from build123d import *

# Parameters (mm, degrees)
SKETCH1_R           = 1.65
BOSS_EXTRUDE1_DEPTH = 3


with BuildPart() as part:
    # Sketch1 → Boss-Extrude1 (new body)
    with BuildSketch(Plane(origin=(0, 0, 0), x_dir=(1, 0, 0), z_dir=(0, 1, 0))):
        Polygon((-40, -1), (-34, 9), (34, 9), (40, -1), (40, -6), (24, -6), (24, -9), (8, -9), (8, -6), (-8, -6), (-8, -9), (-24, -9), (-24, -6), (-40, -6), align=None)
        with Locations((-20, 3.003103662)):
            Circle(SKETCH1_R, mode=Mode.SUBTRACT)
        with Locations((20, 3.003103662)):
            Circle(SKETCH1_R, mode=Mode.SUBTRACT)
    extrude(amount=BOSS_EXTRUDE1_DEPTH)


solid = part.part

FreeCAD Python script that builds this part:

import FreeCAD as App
import Part
import Sketcher
Q = App.Units.Quantity


def add_polygon(sketch, points):
    """Adds a closed chain of lines whose ends are joined by coincident constraints."""
    first, n = sketch.GeometryCount, len(points)
    for a, b in zip(points, points[1:] + points[:1]):
        sketch.addGeometry(Part.LineSegment(App.Vector(*a, 0), App.Vector(*b, 0)), False)
    for i in range(n):
        sketch.addConstraint(Sketcher.Constraint("Coincident", first + i, 2, first + (i + 1) % n, 1))

doc = App.newDocument("Part")
params = doc.addObject("Spreadsheet::Sheet", "Params")
for row, (alias, value) in enumerate([
    ("sketch1_diameter", "3.3 mm"),
    ("sketch1_width", "16 mm"),
    ("sketch1_width2", "68 mm"),
    ("sketch1_height", "5 mm"),
    ("sketch1_height2", "3 mm"),
    ("pad1_length", "3 mm"),
], start=1):
    params.set(f"A{row}", alias)
    params.set(f"B{row}", "=" + value)
    params.setAlias(f"B{row}", alias)

body = doc.addObject("PartDesign::Body", "Body")

sketch1 = body.newObject("Sketcher::SketchObject", "Sketch")
sketch1.AttachmentSupport = (doc.getObject("XZ_Plane"), [""])
sketch1.MapMode = "FlatFace"
add_polygon(sketch1, [(-34, -9), (-40, 1), (-40, 6), (-24, 6), (-24, 9), (-8, 9), (-8, 6), (8, 6), (8, 9), (24, 9), (24, 6), (40, 6), (40, 1), (34, -9)])
sketch1.addGeometry(Part.Circle(App.Vector(20, -3, 0), App.Vector(0, 0, 1), 1.6), False)
sketch1.addGeometry(Part.Circle(App.Vector(-20, -3, 0), App.Vector(0, 0, 1), 1.6), False)
sketch1.addConstraint([
    Sketcher.Constraint("Vertical", 1),
    Sketcher.Constraint("Horizontal", 2),
    Sketcher.Constraint("Vertical", 3),
    Sketcher.Constraint("Horizontal", 4),
    Sketcher.Constraint("Vertical", 5),
    Sketcher.Constraint("Horizontal", 6),
    Sketcher.Constraint("Vertical", 7),
    Sketcher.Constraint("Horizontal", 8),
    Sketcher.Constraint("Vertical", 9),
    Sketcher.Constraint("Horizontal", 10),
    Sketcher.Constraint("Vertical", 11),
    Sketcher.Constraint("Horizontal", 13),
    Sketcher.Constraint("Equal", 14, 15),
    Sketcher.Constraint("Symmetric", 14, 3, 15, 3, -2),
    Sketcher.Constraint("Symmetric", 4, 2, 7, 2, -2),
    Sketcher.Constraint("Symmetric", 2, 2, 9, 2, -2),
    Sketcher.Constraint("Symmetric", 0, 2, 11, 2, -2),
    Sketcher.Constraint("Horizontal", 2, 2, 5, 2),
    Sketcher.Constraint("Equal", 2, 4),
    Sketcher.Constraint("Equal", 4, 6),
    Sketcher.Constraint("Equal", 0, 12),
    Sketcher.Constraint("Diameter", 14, Q("3.3 mm")),
    Sketcher.Constraint("DistanceX", 2, 1, 2, 2, Q("16 mm")),
    Sketcher.Constraint("DistanceX", 13, 2, 13, 1, Q("68 mm")),
    Sketcher.Constraint("DistanceY", 1, 1, 1, 2, Q("5 mm")),
    Sketcher.Constraint("DistanceY", 3, 1, 3, 2, Q("3 mm")),
    Sketcher.Constraint("DistanceX", -1, 1, 14, 3, Q("20 mm")),
    Sketcher.Constraint("DistanceY", -1, 1, 0, 2, Q("1 mm")),
    Sketcher.Constraint("DistanceY", 12, 2, -1, 1, Q("9 mm")),
    Sketcher.Constraint("DistanceY", 14, 3, -1, 1, Q("3.003104 mm")),
])
sketch1.setExpression("Constraints[35]", "Params.sketch1_diameter")
sketch1.setExpression("Constraints[36]", "Params.sketch1_width")
sketch1.setExpression("Constraints[37]", "Params.sketch1_width2")
sketch1.setExpression("Constraints[38]", "Params.sketch1_height")
sketch1.setExpression("Constraints[39]", "Params.sketch1_height2")
pad1 = body.newObject("PartDesign::Pad", "Pad")
pad1.Profile = sketch1
pad1.setExpression("Length", "Params.pad1_length")
pad1.Reversed = True

doc.recompute()
